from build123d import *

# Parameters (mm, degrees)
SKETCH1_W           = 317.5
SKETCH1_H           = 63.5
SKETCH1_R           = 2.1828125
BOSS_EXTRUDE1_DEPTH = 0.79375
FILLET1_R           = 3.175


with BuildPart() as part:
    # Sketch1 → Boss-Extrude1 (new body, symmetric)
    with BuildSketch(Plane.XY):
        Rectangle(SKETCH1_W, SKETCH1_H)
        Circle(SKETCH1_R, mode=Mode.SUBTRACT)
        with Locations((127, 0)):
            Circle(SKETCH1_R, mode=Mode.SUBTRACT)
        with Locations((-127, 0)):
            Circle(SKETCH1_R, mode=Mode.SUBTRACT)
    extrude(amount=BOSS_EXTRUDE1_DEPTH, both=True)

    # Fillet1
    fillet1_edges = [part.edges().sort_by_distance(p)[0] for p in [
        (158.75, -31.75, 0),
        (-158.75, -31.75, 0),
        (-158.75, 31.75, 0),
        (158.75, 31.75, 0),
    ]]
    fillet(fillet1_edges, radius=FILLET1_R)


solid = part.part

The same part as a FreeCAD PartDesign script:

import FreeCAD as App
import Part
import Sketcher
Q = App.Units.Quantity


def edges_at(feature, points):
    """Names of the edges that pass closest to the given points."""
    edges = feature.Shape.Edges
    near = lambda p: min(range(len(edges)), key=lambda i: edges[i].distToShape(Part.Vertex(*p))[0])
    return sorted({f"Edge{near(p) + 1}" for p in points})


def add_polygon(sketch, points):
    """Adds a closed chain of lines whose ends are joined by coincident constraints."""
    first, n = sketch.GeometryCount, len(points)
    for a, b in zip(points, points[1:] + points[:1]):
        sketch.addGeometry(Part.LineSegment(App.Vector(*a, 0), App.Vector(*b, 0)), False)
    for i in range(n):
        sketch.addConstraint(Sketcher.Constraint("Coincident", first + i, 2, first + (i + 1) % n, 1))

doc = App.newDocument("Part")
body = doc.addObject("PartDesign::Body", "Body")

sketch1 = doc.addObject("Sketcher::SketchObject", "Sketch")
body.addObject(sketch1)
sketch1.AttachmentSupport = (doc.XY_Plane, [""])
sketch1.MapMode = "FlatFace"
add_polygon(sketch1, [(-158.8, 31.8), (-158.8, -31.8), (158.8, -31.8), (158.8, 31.8)])
sketch1.addGeometry(Part.Circle(App.Vector(-127, 0, 0), App.Vector(0, 0, 1), 2.2), False)
sketch1.addGeometry(Part.Circle(App.Vector(0, 0, 0), App.Vector(0, 0, 1), 2.2), False)
sketch1.addGeometry(Part.Circle(App.Vector(127, 0, 0), App.Vector(0, 0, 1), 2.2), False)
sketch1.addConstraint(Sketcher.Constraint("Vertical", 0))
sketch1.addConstraint(Sketcher.Constraint("Horizontal", 1))
sketch1.addConstraint(Sketcher.Constraint("Vertical", 2))
sketch1.addConstraint(Sketcher.Constraint("Horizontal", 3))
sketch1.addConstraint(Sketcher.Constraint("Coincident", 5, 3, -1, 1))
sketch1.addConstraint(Sketcher.Constraint("Equal", 4, 5))
sketch1.addConstraint(Sketcher.Constraint("Equal", 5, 6))
sketch1.addConstraint(Sketcher.Constraint("Symmetric", 4, 3, 6, 3, -1, 1))
sketch1.addConstraint(Sketcher.Constraint("Symmetric", 0, 2, 2, 2, -1, 1))
sketch1.addConstraint(Sketcher.Constraint("PointOnObject", 4, 3, -1))
sketch1.addConstraint(Sketcher.Constraint("Diameter", 4, Q("0.171875 in")))
sketch1.addConstraint(Sketcher.Constraint("DistanceX", 1, 1, 1, 2, Q("12.5 in")))
sketch1.addConstraint(Sketcher.Constraint("DistanceY", 0, 2, 0, 1, Q("2.5 in")))
sketch1.addConstraint(Sketcher.Constraint("DistanceX", 4, 3, -1, 1, Q("5 in")))
pad1 = doc.addObject("PartDesign::Pad", "Pad")
body.addObject(pad1)
pad1.Profile = sketch1
pad1.Length = Q("0.0625 in")
pad1.Midplane = True
doc.recompute()

fillet = doc.addObject("PartDesign::Fillet", "Fillet")
body.addObject(fillet)
fillet.Base = (pad1, edges_at(pad1, [
    (158.75, -31.75, 0),
    (-158.75, -31.75, 0),
    (-158.75, 31.75, 0),
    (158.75, 31.75, 0),
]))
fillet.Radius = Q("0.125 in")

doc.recompute()
